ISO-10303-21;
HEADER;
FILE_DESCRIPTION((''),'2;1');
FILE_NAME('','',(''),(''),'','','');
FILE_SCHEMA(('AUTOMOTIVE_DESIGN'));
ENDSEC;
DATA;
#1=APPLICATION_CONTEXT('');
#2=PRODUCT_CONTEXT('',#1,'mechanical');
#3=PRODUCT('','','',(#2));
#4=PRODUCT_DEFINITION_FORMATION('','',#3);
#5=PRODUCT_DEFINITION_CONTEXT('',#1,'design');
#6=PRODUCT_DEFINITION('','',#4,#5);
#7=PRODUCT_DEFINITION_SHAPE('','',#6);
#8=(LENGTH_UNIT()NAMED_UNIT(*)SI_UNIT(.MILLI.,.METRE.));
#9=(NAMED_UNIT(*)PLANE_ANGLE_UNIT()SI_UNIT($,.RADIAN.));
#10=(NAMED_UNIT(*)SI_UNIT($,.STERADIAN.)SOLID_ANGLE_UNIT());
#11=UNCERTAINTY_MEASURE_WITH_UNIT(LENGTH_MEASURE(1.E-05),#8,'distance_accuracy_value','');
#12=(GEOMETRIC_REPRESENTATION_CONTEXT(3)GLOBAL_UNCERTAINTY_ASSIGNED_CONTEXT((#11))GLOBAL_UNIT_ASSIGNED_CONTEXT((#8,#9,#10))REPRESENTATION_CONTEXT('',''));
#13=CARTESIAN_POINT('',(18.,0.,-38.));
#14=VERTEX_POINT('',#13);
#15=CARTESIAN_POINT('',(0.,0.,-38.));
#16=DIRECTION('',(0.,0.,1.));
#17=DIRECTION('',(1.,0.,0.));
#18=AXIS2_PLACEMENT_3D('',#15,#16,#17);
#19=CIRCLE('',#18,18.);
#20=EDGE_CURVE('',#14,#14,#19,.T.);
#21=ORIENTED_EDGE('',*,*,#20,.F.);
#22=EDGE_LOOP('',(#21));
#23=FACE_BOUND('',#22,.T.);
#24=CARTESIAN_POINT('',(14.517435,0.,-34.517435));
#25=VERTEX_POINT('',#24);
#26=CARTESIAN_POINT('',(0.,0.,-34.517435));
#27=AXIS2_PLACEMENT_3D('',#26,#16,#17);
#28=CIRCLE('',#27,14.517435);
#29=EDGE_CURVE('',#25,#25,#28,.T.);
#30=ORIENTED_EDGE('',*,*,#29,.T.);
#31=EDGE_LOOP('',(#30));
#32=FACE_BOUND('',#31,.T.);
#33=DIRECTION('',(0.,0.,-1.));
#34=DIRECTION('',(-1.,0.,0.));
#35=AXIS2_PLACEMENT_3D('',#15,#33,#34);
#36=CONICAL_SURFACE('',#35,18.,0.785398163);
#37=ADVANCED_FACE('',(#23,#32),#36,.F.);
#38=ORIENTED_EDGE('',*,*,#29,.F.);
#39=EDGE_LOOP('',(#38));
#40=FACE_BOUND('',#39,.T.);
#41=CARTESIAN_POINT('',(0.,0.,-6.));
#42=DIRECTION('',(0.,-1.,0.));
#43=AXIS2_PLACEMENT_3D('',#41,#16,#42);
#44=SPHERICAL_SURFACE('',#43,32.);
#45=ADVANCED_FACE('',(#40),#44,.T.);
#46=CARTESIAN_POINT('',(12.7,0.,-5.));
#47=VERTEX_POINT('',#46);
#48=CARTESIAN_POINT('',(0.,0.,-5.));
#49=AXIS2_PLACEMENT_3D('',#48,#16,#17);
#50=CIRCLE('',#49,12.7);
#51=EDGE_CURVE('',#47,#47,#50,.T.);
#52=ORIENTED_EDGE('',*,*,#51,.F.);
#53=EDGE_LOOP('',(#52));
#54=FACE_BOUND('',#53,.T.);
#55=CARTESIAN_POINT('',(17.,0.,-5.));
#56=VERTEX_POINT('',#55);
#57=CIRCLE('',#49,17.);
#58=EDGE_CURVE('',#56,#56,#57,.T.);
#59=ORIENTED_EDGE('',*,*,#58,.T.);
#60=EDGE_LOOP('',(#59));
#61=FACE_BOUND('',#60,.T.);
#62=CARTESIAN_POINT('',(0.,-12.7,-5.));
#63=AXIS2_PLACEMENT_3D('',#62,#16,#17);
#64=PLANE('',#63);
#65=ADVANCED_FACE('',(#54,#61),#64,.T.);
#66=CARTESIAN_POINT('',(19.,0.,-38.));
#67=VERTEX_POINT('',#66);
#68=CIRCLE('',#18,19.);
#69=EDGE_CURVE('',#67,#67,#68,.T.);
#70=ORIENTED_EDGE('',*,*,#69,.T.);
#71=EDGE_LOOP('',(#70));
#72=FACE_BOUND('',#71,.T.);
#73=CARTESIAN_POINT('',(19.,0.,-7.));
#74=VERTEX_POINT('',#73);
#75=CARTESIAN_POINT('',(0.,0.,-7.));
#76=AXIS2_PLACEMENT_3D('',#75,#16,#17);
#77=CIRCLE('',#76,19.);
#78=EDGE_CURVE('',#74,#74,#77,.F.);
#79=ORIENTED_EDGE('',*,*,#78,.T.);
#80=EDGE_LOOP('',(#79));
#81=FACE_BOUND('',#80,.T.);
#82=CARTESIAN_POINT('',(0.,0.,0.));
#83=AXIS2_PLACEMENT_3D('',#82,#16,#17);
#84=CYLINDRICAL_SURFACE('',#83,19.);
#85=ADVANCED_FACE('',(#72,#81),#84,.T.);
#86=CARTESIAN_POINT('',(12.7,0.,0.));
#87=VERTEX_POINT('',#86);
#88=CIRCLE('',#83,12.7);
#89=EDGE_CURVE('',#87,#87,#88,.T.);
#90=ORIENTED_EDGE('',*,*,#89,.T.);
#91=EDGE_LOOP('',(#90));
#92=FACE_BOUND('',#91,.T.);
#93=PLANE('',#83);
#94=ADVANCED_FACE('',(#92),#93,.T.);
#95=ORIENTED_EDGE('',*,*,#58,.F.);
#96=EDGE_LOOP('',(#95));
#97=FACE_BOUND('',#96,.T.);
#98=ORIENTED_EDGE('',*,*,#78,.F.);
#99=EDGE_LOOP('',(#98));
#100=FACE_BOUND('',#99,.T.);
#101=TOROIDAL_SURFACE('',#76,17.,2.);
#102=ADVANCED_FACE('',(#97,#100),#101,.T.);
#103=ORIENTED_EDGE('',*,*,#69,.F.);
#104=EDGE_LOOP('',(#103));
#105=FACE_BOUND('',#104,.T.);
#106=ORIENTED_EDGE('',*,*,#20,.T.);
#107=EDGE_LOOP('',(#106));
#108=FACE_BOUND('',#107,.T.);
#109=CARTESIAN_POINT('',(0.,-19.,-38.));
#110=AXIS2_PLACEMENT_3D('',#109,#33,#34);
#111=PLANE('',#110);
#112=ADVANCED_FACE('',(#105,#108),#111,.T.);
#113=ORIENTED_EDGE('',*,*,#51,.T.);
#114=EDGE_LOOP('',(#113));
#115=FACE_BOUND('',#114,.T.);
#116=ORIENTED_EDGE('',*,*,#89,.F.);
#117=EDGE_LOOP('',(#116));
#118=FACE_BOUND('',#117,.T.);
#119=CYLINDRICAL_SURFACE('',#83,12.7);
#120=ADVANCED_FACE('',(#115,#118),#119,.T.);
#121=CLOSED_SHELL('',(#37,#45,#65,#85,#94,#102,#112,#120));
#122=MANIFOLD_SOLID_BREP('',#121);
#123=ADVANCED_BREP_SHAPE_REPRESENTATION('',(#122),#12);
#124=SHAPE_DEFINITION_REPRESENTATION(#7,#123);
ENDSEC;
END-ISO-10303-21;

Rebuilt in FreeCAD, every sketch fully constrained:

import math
import FreeCAD as App
import Part
import Sketcher
from FreeCAD import Vector
Q = App.Units.Quantity


def edges_at(feature, points):
    """Names of the edges that pass closest to the given points."""
    edges = feature.Shape.Edges
    near = lambda p: min(range(len(edges)), key=lambda i: edges[i].distToShape(Part.Vertex(*p))[0])
    return sorted({f"Edge{near(p) + 1}" for p in points})

doc = App.newDocument("Part")
params = doc.addObject("Spreadsheet::Sheet", "Params")
for row, (alias, value) in enumerate([
    ("sketch1_radius", "32 mm"),
    ("sketch1_width", "1 mm"),
    ("sketch1_height", "5 mm"),
    ("sketch1_height2", "33 mm"),
    ("sketch1_width2", "12.7 mm"),
    ("revolution_angle", "360 deg"),
    ("fillet_radius", "2 mm"),
], start=1):
    params.set(f"A{row}", alias)
    params.set(f"B{row}", "=" + value)
    params.setAlias(f"B{row}", alias)

body = doc.addObject("PartDesign::Body", "Body")

sketch1 = body.newObject("Sketcher::SketchObject", "Sketch")
sketch1.AttachmentSupport = (doc.getObject("YZ_Plane"), [""])
sketch1.MapMode = "FlatFace"
sketch1.addGeometry(Part.LineSegment(Vector(0, 0, 0), Vector(-12.7, 0, 0)), False)
sketch1.addGeometry(Part.LineSegment(Vector(-12.7, 0, 0), Vector(-12.7, -5, 0)), False)
sketch1.addGeometry(Part.LineSegment(Vector(-12.7, -5, 0), Vector(-19, -5, 0)), False)
sketch1.addGeometry(Part.LineSegment(Vector(-19, -5, 0), Vector(-19, -38, 0)), False)
sketch1.addGeometry(Part.LineSegment(Vector(-19, -38, 0), Vector(-18, -38, 0)), False)
sketch1.addGeometry(Part.LineSegment(Vector(-18, -38, 0), Vector(-14.5, -34.5, 0)), False)
sketch1.addGeometry(Part.ArcOfCircle(Part.Circle(Vector(0, -6, 0), Vector(0, 0, 1), 32), math.radians(-117), math.radians(-90)), False)
sketch1.addGeometry(Part.LineSegment(Vector(0, -38, 0), Vector(0, 0, 0)), False)
sketch1.addConstraint(Sketcher.Constraint("Coincident", 0, 2, 1, 1))
sketch1.addConstraint(Sketcher.Constraint("Coincident", 1, 2, 2, 1))
sketch1.addConstraint(Sketcher.Constraint("Coincident", 2, 2, 3, 1))
sketch1.addConstraint(Sketcher.Constraint("Coincident", 3, 2, 4, 1))
sketch1.addConstraint(Sketcher.Constraint("Coincident", 4, 2, 5, 1))
sketch1.addConstraint(Sketcher.Constraint("Coincident", 5, 2, 6, 1))
sketch1.addConstraint(Sketcher.Constraint("Coincident", 6, 2, 7, 1))
sketch1.addConstraint(Sketcher.Constraint("Coincident", 7, 2, 0, 1))
sketch1.addConstraint(Sketcher.Constraint("Horizontal", 0))
sketch1.addConstraint(Sketcher.Constraint("Vertical", 1))
sketch1.addConstraint(Sketcher.Constraint("Horizontal", 2))
sketch1.addConstraint(Sketcher.Constraint("Vertical", 3))
sketch1.addConstraint(Sketcher.Constraint("Horizontal", 4))
sketch1.addConstraint(Sketcher.Constraint("Vertical", 7))
sketch1.addConstraint(Sketcher.Constraint("Coincident", 7, 2, -1, 1))
sketch1.addConstraint(Sketcher.Constraint("PointOnObject", 6, 3, -2))
sketch1.addConstraint(Sketcher.Constraint("Horizontal", 4, 2, 6, 2))
sketch1.addConstraint(Sketcher.Constraint("Radius", 6, 32.0))
sketch1.addConstraint(Sketcher.Constraint("DistanceX", 4, 1, 4, 2, 1.0))
sketch1.addConstraint(Sketcher.Constraint("DistanceY", 1, 2, 1, 1, 5.0))
sketch1.addConstraint(Sketcher.Constraint("DistanceY", 3, 2, 3, 1, 33.0))
sketch1.addConstraint(Sketcher.Constraint("Angle", 5, Q("45 deg")))
sketch1.addConstraint(Sketcher.Constraint("DistanceX", 0, 2, 0, 1, 12.7))
sketch1.addConstraint(Sketcher.Constraint("DistanceX", 2, 2, 2, 1, 6.3))
sketch1.setExpression("Constraints[17]", "Params.sketch1_radius")
sketch1.setExpression("Constraints[18]", "Params.sketch1_width")
sketch1.setExpression("Constraints[19]", "Params.sketch1_height")
sketch1.setExpression("Constraints[20]", "Params.sketch1_height2")
sketch1.setExpression("Constraints[22]", "Params.sketch1_width2")
revolution = body.newObject("PartDesign::Revolution", "Revolution")
revolution.Profile = sketch1
revolution.ReferenceAxis = (sketch1, ["V_Axis"])
revolution.setExpression("Angle", "Params.revolution_angle")
doc.recompute()

fillet = body.newObject("PartDesign::Fillet", "Fillet")
fillet.Base = (revolution, edges_at(revolution, [(-19, 0, -5)]))
fillet.setExpression("Radius", "Params.fillet_radius")

doc.recompute()
